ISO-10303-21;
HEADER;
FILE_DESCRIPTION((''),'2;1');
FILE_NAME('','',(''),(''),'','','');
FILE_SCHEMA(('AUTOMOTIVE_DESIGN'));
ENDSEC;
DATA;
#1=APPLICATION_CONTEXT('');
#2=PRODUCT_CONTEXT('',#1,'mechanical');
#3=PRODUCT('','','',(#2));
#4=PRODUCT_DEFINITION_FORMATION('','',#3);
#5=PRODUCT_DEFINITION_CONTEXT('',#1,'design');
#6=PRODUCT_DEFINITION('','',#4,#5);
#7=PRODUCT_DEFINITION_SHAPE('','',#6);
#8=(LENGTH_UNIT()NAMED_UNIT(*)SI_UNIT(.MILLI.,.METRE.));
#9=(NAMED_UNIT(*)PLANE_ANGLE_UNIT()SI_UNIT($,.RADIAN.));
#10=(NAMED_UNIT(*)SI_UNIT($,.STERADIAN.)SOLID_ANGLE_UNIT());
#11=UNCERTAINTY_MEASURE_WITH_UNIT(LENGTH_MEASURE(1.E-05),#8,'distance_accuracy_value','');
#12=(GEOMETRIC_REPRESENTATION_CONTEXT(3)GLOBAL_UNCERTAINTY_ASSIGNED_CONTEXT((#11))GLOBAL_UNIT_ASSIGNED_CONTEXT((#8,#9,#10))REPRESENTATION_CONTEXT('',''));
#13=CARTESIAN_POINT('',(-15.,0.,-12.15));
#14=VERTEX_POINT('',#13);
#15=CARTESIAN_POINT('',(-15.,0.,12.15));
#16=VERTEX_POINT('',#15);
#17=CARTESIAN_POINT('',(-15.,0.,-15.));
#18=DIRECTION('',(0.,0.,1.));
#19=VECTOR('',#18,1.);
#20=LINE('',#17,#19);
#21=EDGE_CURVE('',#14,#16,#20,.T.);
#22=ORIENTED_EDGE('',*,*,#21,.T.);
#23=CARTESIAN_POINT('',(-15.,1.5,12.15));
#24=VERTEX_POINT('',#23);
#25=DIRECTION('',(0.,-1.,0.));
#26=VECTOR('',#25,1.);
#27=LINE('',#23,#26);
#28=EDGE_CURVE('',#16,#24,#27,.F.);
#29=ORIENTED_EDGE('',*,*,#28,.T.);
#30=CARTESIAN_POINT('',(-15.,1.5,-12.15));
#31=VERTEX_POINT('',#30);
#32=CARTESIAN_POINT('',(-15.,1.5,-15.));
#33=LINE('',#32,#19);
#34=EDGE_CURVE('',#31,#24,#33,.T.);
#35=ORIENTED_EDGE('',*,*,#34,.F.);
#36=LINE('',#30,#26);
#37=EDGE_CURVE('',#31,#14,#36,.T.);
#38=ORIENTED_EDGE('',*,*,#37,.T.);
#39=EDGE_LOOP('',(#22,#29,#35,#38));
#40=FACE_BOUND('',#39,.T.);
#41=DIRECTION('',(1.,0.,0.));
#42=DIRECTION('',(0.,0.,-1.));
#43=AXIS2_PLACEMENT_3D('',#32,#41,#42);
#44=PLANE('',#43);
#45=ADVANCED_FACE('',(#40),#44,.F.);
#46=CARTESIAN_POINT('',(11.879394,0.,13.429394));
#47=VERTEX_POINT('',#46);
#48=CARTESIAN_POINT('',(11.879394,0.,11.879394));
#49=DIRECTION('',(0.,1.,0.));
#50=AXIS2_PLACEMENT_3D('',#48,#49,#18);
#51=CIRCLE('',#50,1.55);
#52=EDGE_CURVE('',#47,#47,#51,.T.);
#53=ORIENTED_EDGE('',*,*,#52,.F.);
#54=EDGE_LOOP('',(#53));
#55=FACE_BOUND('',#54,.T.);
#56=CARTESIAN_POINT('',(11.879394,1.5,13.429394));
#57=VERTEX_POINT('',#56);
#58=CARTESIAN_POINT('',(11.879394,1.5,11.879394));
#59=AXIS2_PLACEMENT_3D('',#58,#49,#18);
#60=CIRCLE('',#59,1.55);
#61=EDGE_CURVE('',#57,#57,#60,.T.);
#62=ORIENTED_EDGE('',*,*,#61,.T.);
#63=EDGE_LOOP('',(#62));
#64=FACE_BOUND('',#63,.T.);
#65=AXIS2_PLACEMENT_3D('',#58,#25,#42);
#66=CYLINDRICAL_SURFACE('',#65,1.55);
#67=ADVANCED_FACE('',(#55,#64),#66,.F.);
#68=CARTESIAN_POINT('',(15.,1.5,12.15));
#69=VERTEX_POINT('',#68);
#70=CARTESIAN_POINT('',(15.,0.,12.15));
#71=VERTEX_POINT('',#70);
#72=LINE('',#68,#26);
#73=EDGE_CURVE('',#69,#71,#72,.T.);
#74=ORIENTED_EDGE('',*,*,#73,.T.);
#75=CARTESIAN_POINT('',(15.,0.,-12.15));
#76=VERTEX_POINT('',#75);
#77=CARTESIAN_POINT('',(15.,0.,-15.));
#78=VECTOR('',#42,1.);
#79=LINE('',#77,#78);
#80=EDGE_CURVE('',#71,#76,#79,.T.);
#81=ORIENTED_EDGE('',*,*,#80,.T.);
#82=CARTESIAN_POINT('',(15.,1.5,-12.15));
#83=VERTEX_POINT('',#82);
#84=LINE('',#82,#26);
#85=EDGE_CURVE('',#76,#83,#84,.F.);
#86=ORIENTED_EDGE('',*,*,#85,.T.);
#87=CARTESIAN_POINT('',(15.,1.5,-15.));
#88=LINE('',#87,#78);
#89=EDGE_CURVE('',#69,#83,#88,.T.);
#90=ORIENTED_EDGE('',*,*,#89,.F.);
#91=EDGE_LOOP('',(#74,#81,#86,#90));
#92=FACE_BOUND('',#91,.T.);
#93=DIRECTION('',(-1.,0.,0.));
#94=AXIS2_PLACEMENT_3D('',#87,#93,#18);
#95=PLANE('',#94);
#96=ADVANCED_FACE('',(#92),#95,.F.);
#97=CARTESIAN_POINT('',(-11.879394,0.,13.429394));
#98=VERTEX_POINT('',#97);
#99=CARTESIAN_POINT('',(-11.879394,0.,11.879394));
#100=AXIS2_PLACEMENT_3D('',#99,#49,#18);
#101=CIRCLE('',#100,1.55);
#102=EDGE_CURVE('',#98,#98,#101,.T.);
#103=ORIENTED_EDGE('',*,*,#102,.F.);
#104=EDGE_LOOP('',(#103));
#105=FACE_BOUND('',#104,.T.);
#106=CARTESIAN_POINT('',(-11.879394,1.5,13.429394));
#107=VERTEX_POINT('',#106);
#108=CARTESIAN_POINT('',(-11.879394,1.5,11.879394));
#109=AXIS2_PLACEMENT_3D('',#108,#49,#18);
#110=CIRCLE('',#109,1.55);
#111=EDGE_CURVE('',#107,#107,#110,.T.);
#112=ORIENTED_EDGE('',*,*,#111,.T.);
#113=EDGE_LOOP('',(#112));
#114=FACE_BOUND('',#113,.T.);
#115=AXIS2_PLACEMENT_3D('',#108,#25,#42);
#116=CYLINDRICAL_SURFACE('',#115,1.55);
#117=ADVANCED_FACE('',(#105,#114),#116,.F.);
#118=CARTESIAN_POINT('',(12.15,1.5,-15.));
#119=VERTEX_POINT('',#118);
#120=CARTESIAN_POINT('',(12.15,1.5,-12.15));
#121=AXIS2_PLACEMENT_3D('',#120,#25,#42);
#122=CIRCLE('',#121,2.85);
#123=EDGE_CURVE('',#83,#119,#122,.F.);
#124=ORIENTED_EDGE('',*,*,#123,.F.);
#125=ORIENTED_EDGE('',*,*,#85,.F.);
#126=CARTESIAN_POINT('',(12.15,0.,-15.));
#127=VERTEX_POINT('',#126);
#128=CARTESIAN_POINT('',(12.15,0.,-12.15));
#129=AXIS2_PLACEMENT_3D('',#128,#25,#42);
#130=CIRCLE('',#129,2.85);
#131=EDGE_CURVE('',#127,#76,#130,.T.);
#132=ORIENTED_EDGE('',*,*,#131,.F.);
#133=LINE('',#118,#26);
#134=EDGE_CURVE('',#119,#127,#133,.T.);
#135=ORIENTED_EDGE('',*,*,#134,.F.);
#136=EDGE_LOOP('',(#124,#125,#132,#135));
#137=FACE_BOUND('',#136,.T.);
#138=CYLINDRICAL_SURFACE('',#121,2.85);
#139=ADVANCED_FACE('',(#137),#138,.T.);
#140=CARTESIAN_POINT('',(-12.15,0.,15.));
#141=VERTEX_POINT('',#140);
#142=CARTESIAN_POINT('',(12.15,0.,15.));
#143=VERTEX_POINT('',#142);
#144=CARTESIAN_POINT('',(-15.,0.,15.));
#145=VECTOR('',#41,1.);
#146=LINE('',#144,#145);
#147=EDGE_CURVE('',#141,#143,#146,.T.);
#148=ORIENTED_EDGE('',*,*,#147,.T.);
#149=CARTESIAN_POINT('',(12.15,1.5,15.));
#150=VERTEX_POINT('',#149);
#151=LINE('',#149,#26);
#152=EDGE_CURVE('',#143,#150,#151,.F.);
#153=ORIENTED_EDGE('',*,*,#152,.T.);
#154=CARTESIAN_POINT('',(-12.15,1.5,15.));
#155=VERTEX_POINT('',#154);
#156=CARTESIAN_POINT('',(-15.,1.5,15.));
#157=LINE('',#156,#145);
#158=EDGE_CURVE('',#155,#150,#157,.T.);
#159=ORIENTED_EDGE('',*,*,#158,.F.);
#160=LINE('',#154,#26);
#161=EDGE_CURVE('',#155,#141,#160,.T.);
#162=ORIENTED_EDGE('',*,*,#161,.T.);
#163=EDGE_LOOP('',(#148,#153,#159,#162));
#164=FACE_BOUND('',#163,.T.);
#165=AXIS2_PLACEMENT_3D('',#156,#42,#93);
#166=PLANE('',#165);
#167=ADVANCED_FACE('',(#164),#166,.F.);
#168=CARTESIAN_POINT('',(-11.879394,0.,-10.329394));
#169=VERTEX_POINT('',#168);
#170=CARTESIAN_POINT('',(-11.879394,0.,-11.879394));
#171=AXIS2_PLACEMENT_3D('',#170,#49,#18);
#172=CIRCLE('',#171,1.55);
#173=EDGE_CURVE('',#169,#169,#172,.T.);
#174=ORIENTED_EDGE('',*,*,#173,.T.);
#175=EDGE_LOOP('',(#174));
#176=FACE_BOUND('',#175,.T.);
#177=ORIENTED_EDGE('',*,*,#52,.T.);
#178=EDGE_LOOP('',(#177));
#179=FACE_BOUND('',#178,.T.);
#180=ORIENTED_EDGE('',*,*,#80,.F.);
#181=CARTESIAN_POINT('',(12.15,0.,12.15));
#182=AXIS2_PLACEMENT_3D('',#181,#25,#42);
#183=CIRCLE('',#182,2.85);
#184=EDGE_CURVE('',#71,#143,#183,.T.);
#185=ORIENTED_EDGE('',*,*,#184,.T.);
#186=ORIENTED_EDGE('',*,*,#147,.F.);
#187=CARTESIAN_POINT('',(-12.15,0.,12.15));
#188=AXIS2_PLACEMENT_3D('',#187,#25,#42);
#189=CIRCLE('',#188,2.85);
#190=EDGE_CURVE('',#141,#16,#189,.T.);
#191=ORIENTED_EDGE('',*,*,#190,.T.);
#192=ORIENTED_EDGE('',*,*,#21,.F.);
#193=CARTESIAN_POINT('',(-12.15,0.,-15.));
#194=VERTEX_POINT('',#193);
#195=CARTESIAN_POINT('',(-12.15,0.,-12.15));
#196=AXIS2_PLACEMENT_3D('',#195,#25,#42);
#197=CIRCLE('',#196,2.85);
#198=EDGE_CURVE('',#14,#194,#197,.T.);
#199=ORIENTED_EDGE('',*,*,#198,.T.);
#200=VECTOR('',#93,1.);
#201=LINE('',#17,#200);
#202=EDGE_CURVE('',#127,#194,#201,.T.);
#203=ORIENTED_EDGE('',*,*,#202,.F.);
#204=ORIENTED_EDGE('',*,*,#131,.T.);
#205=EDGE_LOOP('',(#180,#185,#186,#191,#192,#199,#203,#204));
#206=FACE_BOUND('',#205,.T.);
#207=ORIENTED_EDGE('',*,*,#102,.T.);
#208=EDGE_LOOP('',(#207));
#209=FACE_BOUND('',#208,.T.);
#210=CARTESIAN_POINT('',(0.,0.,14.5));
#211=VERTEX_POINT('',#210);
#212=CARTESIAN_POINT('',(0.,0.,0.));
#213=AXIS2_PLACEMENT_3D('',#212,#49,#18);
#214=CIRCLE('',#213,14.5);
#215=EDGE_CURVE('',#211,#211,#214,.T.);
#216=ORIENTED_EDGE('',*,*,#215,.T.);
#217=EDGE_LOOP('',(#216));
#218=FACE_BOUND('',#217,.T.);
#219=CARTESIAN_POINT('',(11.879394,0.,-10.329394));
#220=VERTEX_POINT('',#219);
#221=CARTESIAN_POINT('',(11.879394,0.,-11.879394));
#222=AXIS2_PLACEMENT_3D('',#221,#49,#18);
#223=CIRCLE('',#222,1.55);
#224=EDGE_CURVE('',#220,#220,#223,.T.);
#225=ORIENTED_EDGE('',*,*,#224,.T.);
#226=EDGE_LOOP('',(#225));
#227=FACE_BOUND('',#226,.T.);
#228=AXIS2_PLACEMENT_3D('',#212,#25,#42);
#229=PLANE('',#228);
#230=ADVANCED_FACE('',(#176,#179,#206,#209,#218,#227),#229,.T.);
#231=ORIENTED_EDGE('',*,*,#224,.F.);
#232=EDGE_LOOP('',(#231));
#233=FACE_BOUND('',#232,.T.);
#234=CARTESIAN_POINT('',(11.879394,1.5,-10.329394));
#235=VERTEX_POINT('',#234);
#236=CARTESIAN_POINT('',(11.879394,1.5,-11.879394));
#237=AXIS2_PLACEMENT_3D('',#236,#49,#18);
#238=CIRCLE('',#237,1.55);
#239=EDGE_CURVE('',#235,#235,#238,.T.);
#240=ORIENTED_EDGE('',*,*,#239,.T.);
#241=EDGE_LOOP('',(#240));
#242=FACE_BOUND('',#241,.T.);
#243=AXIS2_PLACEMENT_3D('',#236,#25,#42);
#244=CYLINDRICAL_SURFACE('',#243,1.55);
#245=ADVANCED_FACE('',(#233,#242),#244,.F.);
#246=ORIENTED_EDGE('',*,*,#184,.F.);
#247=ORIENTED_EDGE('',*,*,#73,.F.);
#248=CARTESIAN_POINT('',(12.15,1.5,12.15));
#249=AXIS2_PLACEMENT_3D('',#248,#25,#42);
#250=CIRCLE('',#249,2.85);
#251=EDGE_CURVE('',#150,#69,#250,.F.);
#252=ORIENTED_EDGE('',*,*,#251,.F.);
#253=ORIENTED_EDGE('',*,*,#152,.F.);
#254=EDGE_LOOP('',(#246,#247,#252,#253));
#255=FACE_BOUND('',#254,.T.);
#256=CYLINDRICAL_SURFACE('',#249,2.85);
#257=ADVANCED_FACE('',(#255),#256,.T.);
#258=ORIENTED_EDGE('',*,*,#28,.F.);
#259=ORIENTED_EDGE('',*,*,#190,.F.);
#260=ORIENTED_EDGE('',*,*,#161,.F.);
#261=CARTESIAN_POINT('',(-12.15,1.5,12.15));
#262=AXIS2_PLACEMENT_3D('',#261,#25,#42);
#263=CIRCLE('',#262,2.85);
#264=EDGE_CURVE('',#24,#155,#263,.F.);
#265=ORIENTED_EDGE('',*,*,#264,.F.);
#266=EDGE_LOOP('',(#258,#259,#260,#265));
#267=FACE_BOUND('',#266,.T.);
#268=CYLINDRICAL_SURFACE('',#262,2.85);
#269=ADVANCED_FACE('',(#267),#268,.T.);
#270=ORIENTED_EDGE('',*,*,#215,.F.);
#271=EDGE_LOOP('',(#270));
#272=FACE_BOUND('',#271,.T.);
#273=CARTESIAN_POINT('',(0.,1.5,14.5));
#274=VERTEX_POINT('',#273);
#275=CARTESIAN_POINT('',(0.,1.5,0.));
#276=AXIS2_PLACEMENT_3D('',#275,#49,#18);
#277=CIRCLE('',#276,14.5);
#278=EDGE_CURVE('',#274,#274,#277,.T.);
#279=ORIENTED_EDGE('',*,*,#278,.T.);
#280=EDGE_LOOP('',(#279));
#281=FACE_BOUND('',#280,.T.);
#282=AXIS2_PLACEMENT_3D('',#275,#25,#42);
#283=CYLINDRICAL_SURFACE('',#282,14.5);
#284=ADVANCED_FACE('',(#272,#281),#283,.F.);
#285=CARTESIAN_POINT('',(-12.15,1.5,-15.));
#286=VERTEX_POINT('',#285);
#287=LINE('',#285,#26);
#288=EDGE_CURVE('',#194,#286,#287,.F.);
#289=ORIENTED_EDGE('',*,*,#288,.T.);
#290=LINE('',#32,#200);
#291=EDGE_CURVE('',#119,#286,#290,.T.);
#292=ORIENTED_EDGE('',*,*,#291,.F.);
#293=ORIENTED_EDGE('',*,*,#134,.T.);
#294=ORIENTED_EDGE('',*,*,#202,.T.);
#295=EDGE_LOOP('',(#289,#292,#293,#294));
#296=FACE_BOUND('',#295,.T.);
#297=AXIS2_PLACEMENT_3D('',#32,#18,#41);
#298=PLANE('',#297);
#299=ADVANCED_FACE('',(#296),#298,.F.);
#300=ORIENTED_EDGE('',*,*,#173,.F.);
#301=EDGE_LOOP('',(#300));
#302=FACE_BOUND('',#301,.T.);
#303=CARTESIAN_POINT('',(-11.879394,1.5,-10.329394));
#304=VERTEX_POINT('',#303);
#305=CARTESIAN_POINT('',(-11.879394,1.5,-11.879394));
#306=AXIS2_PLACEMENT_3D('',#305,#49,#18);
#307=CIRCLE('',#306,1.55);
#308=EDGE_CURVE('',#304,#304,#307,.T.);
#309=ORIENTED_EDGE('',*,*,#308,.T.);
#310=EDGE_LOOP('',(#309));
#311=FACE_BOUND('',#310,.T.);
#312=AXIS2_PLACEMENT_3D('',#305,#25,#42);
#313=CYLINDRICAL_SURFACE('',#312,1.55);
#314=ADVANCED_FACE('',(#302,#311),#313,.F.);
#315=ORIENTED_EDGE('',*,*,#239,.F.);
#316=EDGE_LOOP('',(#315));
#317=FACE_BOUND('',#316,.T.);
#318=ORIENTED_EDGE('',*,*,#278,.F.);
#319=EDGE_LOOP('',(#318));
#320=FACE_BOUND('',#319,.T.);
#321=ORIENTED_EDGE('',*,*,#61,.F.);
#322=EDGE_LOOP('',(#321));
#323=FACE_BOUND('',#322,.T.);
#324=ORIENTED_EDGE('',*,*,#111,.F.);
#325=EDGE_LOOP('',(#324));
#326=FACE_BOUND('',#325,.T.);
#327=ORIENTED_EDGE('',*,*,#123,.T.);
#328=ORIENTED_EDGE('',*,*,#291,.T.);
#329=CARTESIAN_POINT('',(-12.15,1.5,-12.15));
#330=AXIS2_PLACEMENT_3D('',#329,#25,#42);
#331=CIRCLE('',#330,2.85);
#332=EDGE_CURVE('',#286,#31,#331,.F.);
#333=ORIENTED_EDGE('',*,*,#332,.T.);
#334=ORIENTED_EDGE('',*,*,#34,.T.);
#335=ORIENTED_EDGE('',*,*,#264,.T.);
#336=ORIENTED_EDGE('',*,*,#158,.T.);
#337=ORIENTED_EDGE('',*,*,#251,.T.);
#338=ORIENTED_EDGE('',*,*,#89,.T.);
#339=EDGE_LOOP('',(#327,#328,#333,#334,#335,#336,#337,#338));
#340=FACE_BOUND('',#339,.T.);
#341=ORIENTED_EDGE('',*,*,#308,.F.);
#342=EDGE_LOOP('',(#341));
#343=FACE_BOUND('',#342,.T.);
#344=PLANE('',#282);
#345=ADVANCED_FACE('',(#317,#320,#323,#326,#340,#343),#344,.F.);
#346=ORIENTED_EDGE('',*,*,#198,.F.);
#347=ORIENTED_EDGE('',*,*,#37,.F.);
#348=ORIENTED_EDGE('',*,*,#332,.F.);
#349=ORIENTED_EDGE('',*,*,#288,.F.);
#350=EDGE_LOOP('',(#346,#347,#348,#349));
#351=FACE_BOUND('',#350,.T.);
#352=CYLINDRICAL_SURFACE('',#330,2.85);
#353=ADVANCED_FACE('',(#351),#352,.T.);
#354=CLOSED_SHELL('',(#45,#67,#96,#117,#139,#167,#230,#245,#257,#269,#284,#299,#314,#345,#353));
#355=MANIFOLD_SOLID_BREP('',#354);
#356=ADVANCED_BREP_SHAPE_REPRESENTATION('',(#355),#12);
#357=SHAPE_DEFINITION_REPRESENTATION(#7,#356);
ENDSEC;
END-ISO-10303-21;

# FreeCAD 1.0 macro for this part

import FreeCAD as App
import Part
import Sketcher
Q = App.Units.Quantity


def edges_at(feature, points):
    """Names of the edges that pass closest to the given points."""
    edges = feature.Shape.Edges
    near = lambda p: min(range(len(edges)), key=lambda i: edges[i].distToShape(Part.Vertex(*p))[0])
    return sorted({f"Edge{near(p) + 1}" for p in points})


def add_polygon(sketch, points):
    """Adds a closed chain of lines whose ends are joined by coincident constraints."""
    first, n = sketch.GeometryCount, len(points)
    for a, b in zip(points, points[1:] + points[:1]):
        sketch.addGeometry(Part.LineSegment(App.Vector(*a, 0), App.Vector(*b, 0)), False)
    for i in range(n):
        sketch.addConstraint(Sketcher.Constraint("Coincident", first + i, 2, first + (i + 1) % n, 1))

doc = App.newDocument("Part")
body = doc.addObject("PartDesign::Body", "Body")

# Sketch on XZ plane
sketch1 = doc.addObject("Sketcher::SketchObject", "Sketch")
body.addObject(sketch1)
sketch1.AttachmentSupport = (doc.XZ_Plane, [""])
sketch1.MapMode = "FlatFace"
add_polygon(sketch1, [(-15, -15), (-15, 15), (15, 15), (15, -15)])  # lines 0-3
sketch1.addGeometry(Part.Circle(App.Vector(-11.9, 11.9, 0), App.Vector(0, 0, 1), 1.6), False)  # 4
sketch1.addGeometry(Part.Circle(App.Vector(11.9, 11.9, 0), App.Vector(0, 0, 1), 1.6), False)  # 5
sketch1.addGeometry(Part.Circle(App.Vector(-11.9, -11.9, 0), App.Vector(0, 0, 1), 1.6), False)  # 6
sketch1.addGeometry(Part.Circle(App.Vector(0, 0, 0), App.Vector(0, 0, 1), 14.5), False)  # 7
sketch1.addGeometry(Part.Circle(App.Vector(11.9, -11.9, 0), App.Vector(0, 0, 1), 1.6), False)  # 8
sketch1.addConstraint([
    Sketcher.Constraint("Vertical", 0),
    Sketcher.Constraint("Horizontal", 1),
    Sketcher.Constraint("Vertical", 2),
    Sketcher.Constraint("Horizontal", 3),
    Sketcher.Constraint("Coincident", 7, 3, -1, 1),
    Sketcher.Constraint("Equal", 4, 5),
    Sketcher.Constraint("Equal", 5, 6),
    Sketcher.Constraint("Equal", 6, 8),
    Sketcher.Constraint("Symmetric", 5, 3, 6, 3, -1, 1),
    Sketcher.Constraint("Symmetric", 4, 3, 8, 3, -1, 1),
    Sketcher.Constraint("Symmetric", 0, 2, 2, 2, -1, 1),
    Sketcher.Constraint("Symmetric", 4, 3, 5, 3, -2),
    Sketcher.Constraint("Equal", 3, 0),
    Sketcher.Constraint("Diameter", 7, Q("29 mm")),
    Sketcher.Constraint("Diameter", 4, Q("3.1 mm")),
    Sketcher.Constraint("DistanceX", 1, 1, 1, 2, Q("30 mm")),
    Sketcher.Constraint("DistanceX", 4, 3, -1, 1, Q("11.879394 mm")),
    Sketcher.Constraint("DistanceY", -1, 1, 4, 3, Q("11.879394 mm")),
])
pad1 = doc.addObject("PartDesign::Pad", "Pad")
body.addObject(pad1)
pad1.Profile = sketch1
pad1.Length = 1.5
pad1.Reversed = True
doc.recompute()

fillet = doc.addObject("PartDesign::Fillet", "Fillet")
body.addObject(fillet)
fillet.Base = (pad1, edges_at(pad1, [
    (-15, 0.75, 15),
    (-15, 0.75, -15),
    (15, 0.75, -15),
    (15, 0.75, 15),
]))
fillet.Radius = 2.85

doc.recompute()
